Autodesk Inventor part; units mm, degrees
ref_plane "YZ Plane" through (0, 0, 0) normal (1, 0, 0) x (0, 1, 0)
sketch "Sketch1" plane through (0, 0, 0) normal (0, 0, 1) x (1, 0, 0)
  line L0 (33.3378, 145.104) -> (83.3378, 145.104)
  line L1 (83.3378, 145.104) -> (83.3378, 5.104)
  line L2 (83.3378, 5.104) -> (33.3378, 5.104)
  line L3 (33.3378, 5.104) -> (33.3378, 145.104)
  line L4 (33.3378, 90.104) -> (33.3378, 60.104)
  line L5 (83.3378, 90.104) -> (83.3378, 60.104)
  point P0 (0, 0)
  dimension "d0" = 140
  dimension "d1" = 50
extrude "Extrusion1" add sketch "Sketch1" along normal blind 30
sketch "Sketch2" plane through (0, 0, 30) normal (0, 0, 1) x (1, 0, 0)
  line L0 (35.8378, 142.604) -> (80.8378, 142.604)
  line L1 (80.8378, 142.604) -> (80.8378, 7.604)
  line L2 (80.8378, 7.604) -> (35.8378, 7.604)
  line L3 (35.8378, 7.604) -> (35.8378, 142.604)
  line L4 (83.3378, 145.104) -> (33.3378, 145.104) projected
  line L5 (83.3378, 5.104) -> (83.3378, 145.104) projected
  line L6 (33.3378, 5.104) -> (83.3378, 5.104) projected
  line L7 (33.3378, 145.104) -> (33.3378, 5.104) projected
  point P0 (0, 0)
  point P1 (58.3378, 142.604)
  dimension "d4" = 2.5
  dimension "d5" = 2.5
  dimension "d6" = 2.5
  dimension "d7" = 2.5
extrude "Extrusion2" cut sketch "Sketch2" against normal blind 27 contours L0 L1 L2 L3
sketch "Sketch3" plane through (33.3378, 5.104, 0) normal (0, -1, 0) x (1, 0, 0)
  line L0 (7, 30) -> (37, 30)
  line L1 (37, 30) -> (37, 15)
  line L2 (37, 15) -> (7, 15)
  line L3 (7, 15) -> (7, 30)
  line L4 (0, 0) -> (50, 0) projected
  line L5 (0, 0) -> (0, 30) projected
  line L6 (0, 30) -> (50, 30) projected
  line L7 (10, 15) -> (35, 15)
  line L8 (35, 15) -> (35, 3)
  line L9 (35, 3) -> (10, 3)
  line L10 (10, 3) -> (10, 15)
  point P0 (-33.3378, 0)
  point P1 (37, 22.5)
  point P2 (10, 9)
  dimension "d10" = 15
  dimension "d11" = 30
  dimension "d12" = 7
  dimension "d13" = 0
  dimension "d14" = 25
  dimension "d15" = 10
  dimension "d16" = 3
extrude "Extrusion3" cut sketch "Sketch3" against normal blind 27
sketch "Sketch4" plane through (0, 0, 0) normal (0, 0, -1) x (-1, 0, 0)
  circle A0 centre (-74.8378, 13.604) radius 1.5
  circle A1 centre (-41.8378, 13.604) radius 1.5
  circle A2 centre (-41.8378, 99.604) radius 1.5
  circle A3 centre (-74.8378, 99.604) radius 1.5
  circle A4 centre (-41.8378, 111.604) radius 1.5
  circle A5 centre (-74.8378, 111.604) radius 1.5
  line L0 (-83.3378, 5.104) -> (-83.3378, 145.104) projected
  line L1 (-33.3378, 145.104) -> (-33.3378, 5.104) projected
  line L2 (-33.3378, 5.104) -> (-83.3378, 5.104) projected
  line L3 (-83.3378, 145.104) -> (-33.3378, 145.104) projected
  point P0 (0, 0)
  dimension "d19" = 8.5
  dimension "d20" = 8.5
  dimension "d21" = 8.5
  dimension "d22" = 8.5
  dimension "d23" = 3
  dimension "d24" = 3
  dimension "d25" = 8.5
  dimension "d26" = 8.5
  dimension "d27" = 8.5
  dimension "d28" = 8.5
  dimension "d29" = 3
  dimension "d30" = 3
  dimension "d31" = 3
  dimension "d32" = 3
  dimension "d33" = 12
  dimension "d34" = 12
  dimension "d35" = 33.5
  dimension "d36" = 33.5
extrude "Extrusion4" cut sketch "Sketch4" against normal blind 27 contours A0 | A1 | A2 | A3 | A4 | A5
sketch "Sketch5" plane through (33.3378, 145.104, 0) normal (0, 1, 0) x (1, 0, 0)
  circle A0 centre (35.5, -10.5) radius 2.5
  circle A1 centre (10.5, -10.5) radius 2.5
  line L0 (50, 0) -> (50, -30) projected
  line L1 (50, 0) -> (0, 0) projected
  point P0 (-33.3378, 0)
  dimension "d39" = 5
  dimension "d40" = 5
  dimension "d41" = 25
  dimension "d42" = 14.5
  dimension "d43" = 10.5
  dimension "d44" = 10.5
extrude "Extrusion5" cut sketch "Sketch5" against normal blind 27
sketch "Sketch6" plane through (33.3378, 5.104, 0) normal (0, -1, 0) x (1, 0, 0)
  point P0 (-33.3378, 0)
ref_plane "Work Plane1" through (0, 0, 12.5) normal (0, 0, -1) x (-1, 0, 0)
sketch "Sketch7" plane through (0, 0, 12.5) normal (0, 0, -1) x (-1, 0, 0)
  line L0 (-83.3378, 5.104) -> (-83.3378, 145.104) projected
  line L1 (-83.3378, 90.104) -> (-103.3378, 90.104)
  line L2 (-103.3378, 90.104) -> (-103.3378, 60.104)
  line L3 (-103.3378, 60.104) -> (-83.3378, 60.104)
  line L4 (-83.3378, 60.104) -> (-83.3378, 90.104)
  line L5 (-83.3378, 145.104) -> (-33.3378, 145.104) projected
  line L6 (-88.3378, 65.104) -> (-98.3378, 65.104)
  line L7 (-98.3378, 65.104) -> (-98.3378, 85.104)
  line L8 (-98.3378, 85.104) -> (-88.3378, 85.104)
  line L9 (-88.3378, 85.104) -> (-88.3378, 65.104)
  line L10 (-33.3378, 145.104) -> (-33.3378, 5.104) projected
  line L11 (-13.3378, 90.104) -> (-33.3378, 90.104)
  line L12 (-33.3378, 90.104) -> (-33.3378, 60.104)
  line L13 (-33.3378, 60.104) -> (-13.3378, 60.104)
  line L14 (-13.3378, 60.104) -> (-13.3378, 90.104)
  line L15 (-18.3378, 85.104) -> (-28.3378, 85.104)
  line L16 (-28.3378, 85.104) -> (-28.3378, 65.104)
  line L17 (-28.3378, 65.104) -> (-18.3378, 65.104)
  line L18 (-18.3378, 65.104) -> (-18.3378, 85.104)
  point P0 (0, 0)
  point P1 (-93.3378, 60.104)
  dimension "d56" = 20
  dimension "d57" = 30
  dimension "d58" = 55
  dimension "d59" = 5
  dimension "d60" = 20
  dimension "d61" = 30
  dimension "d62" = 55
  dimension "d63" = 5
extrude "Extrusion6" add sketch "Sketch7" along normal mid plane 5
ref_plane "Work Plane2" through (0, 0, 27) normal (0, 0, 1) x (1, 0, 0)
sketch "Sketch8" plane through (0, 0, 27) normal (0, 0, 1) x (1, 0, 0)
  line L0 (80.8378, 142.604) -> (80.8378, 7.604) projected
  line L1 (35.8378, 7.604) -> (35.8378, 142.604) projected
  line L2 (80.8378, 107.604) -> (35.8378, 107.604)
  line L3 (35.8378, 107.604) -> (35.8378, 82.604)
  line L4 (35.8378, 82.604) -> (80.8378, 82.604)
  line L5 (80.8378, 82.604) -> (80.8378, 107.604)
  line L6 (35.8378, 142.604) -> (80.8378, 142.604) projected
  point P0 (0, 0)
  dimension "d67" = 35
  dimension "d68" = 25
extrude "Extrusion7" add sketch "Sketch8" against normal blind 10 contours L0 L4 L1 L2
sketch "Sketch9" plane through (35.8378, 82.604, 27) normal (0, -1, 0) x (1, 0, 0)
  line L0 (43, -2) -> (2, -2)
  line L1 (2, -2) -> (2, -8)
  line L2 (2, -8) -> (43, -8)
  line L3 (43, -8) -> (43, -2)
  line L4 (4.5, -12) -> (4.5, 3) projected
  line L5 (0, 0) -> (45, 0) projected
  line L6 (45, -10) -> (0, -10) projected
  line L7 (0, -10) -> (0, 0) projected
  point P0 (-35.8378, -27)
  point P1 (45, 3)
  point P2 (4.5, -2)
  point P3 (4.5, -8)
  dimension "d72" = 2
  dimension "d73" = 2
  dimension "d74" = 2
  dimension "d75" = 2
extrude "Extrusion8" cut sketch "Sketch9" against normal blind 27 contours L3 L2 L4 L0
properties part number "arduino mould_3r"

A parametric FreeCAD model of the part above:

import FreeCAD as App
import Part
import Sketcher

doc = App.newDocument("Part")
params = doc.addObject("Spreadsheet::Sheet", "Params")
for row, (alias, value) in enumerate([
    ("sketch1_width", "50 mm"),
    ("sketch1_height", "140 mm"),
    ("pad1_length", "30 mm"),
    ("sketch2_width", "45 mm"),
    ("sketch2_height", "135 mm"),
    ("pocket1_length", "27 mm"),
    ("sketch3_width", "30 mm"),
    ("sketch3_width2", "3 mm"),
    ("sketch3_width3", "25 mm"),
    ("sketch3_height", "15 mm"),
    ("pocket2_length", "27 mm"),
    ("sketch4_diameter", "3 mm"),
    ("pocket3_length", "27 mm"),
    ("sketch5_diameter", "5 mm"),
    ("pocket4_length", "27 mm"),
    ("sketch6_width", "20 mm"),
    ("sketch6_height", "30 mm"),
    ("pad2_length", "5 mm"),
    ("sketch7_height", "25 mm"),
    ("sketch7_width", "45 mm"),
    ("pad3_length", "10 mm"),
    ("sketch8_height", "6 mm"),
    ("sketch8_width", "38.5 mm"),
    ("pocket5_length", "27 mm"),
], start=1):
    params.set(f"A{row}", alias)
    params.set(f"B{row}", "=" + value)
    params.setAlias(f"B{row}", alias)

body = doc.addObject("PartDesign::Body", "Body")

# Sketch on XY plane
sketch1 = body.newObject("Sketcher::SketchObject", "Sketch")
sketch1.AttachmentSupport = (doc.getObject("XY_Plane"), [""])
sketch1.MapMode = "FlatFace"
sketch1.addGeometry([
    Part.LineSegment(App.Vector(83, 145, 0), App.Vector(33, 145, 0)),
    Part.LineSegment(App.Vector(33, 145, 0), App.Vector(33, 5, 0)),
    Part.LineSegment(App.Vector(33, 5, 0), App.Vector(83, 5, 0)),
    Part.LineSegment(App.Vector(83, 5, 0), App.Vector(83, 145, 0)),
], False)
sketch1.addConstraint([
    Sketcher.Constraint("Coincident", 0, 2, 1, 1),
    Sketcher.Constraint("Coincident", 1, 2, 2, 1),
    Sketcher.Constraint("Coincident", 2, 2, 3, 1),
    Sketcher.Constraint("Coincident", 3, 2, 0, 1),
    Sketcher.Constraint("Horizontal", 0),
    Sketcher.Constraint("Vertical", 1),
    Sketcher.Constraint("Horizontal", 2),
    Sketcher.Constraint("Vertical", 3),
    Sketcher.Constraint("DistanceX", 0, 2, 0, 1, 50.0),
    Sketcher.Constraint("DistanceY", 1, 2, 1, 1, 140.0),
    Sketcher.Constraint("DistanceY", -1, 1, 0, 2, 145.104),
    Sketcher.Constraint("DistanceX", -1, 1, 0, 2, 33.3378),
])
sketch1.setExpression("Constraints[8]", "Params.sketch1_width")
sketch1.setExpression("Constraints[9]", "Params.sketch1_height")
pad1 = body.newObject("PartDesign::Pad", "Pad")
pad1.Profile = sketch1
pad1.setExpression("Length", "Params.pad1_length")

# Sketch on XY plane
sketch2 = body.newObject("Sketcher::SketchObject", "Sketch001")
sketch2.AttachmentSupport = (doc.getObject("XY_Plane"), [""])
sketch2.MapMode = "FlatFace"
sketch2.AttachmentOffset = App.Placement(App.Vector(0, 0, 30), App.Rotation())
sketch2.addGeometry([
    Part.LineSegment(App.Vector(81, 143, 0), App.Vector(36, 143, 0)),
    Part.LineSegment(App.Vector(36, 143, 0), App.Vector(36, 8, 0)),
    Part.LineSegment(App.Vector(36, 8, 0), App.Vector(81, 8, 0)),
    Part.LineSegment(App.Vector(81, 8, 0), App.Vector(81, 143, 0)),
], False)
sketch2.addConstraint([
    Sketcher.Constraint("Coincident", 0, 2, 1, 1),
    Sketcher.Constraint("Coincident", 1, 2, 2, 1),
    Sketcher.Constraint("Coincident", 2, 2, 3, 1),
    Sketcher.Constraint("Coincident", 3, 2, 0, 1),
    Sketcher.Constraint("Horizontal", 0),
    Sketcher.Constraint("Vertical", 1),
    Sketcher.Constraint("Horizontal", 2),
    Sketcher.Constraint("Vertical", 3),
    Sketcher.Constraint("DistanceX", 0, 2, 0, 1, 45.0),
    Sketcher.Constraint("DistanceY", 1, 2, 1, 1, 135.0),
    Sketcher.Constraint("DistanceY", -1, 1, 0, 2, 142.604),
    Sketcher.Constraint("DistanceX", -1, 1, 0, 2, 35.8378),
])
sketch2.setExpression("Constraints[8]", "Params.sketch2_width")
sketch2.setExpression("Constraints[9]", "Params.sketch2_height")
pocket1 = body.newObject("PartDesign::Pocket", "Pocket")
pocket1.Profile = sketch2
pocket1.setExpression("Length", "Params.pocket1_length")

# Sketch on XZ plane
sketch3 = body.newObject("Sketcher::SketchObject", "Sketch002")
sketch3.AttachmentSupport = (doc.getObject("XZ_Plane"), [""])
sketch3.MapMode = "FlatFace"
sketch3.AttachmentOffset = App.Placement(App.Vector(0, 0, -5.104), App.Rotation())
sketch3.addGeometry([
    Part.LineSegment(App.Vector(70.3, 30, 0), App.Vector(40.3, 30, 0)),  # 0
    Part.LineSegment(App.Vector(40.3, 30, 0), App.Vector(40.3, 15, 0)),  # 1
    Part.LineSegment(App.Vector(40.3, 15, 0), App.Vector(43.3, 15, 0)),  # 2
    Part.LineSegment(App.Vector(43.3, 15, 0), App.Vector(43.3, 3, 0)),  # 3
    Part.LineSegment(App.Vector(43.3, 3, 0), App.Vector(68.3, 3, 0)),  # 4
    Part.LineSegment(App.Vector(68.3, 3, 0), App.Vector(68.3, 15, 0)),  # 5
    Part.LineSegment(App.Vector(68.3, 15, 0), App.Vector(70.3, 15, 0)),  # 6
    Part.LineSegment(App.Vector(70.3, 15, 0), App.Vector(70.3, 30, 0)),  # 7
], False)
sketch3.addConstraint([
    Sketcher.Constraint("Coincident", 0, 2, 1, 1),
    Sketcher.Constraint("Coincident", 1, 2, 2, 1),
    Sketcher.Constraint("Coincident", 2, 2, 3, 1),
    Sketcher.Constraint("Coincident", 3, 2, 4, 1),
    Sketcher.Constraint("Coincident", 4, 2, 5, 1),
    Sketcher.Constraint("Coincident", 5, 2, 6, 1),
    Sketcher.Constraint("Coincident", 6, 2, 7, 1),
    Sketcher.Constraint("Coincident", 7, 2, 0, 1),
    Sketcher.Constraint("Horizontal", 0),
    Sketcher.Constraint("Vertical", 1),
    Sketcher.Constraint("Horizontal", 2),
    Sketcher.Constraint("Vertical", 3),
    Sketcher.Constraint("Horizontal", 4),
    Sketcher.Constraint("Vertical", 5),
    Sketcher.Constraint("Horizontal", 6),
    Sketcher.Constraint("Vertical", 7),
    Sketcher.Constraint("Horizontal", 2, 2, 5, 2),
    Sketcher.Constraint("DistanceX", 0, 2, 0, 1, 30.0),
    Sketcher.Constraint("DistanceX", 2, 1, 2, 2, 3.0),
    Sketcher.Constraint("DistanceX", 4, 1, 4, 2, 25.0),
    Sketcher.Constraint("DistanceY", 1, 2, 1, 1, 15.0),
    Sketcher.Constraint("DistanceY", -1, 1, 0, 2, 30.0),
    Sketcher.Constraint("DistanceY", -1, 1, 3, 2, 3.0),
    Sketcher.Constraint("DistanceX", -1, 1, 0, 2, 40.3378),
])
sketch3.setExpression("Constraints[17]", "Params.sketch3_width")
sketch3.setExpression("Constraints[18]", "Params.sketch3_width2")
sketch3.setExpression("Constraints[19]", "Params.sketch3_width3")
sketch3.setExpression("Constraints[20]", "Params.sketch3_height")
pocket2 = body.newObject("PartDesign::Pocket", "Pocket001")
pocket2.Profile = sketch3
pocket2.setExpression("Length", "Params.pocket2_length")

# Sketch on XY plane
sketch4 = body.newObject("Sketcher::SketchObject", "Sketch003")
sketch4.AttachmentSupport = (doc.getObject("XY_Plane"), [""])
sketch4.MapMode = "FlatFace"
sketch4.addGeometry([
    Part.Circle(App.Vector(74.8, 13.6, 0), App.Vector(0, 0, 1), 1.5),  # 0
    Part.Circle(App.Vector(41.8, 13.6, 0), App.Vector(0, 0, 1), 1.5),  # 1
    Part.Circle(App.Vector(41.8, 99.6, 0), App.Vector(0, 0, 1), 1.5),  # 2
    Part.Circle(App.Vector(74.8, 99.6, 0), App.Vector(0, 0, 1), 1.5),  # 3
    Part.Circle(App.Vector(41.8, 111.6, 0), App.Vector(0, 0, 1), 1.5),  # 4
    Part.Circle(App.Vector(74.8, 111.6, 0), App.Vector(0, 0, 1), 1.5),  # 5
], False)
sketch4.addConstraint([
    Sketcher.Constraint("Equal", 0, 1),
    Sketcher.Constraint("Equal", 1, 2),
    Sketcher.Constraint("Equal", 2, 3),
    Sketcher.Constraint("Equal", 3, 4),
    Sketcher.Constraint("Equal", 4, 5),
    Sketcher.Constraint("Horizontal", 0, 3, 1, 3),
    Sketcher.Constraint("Horizontal", 2, 3, 3, 3),
    Sketcher.Constraint("Horizontal", 4, 3, 5, 3),
    Sketcher.Constraint("Vertical", 1, 3, 2, 3),
    Sketcher.Constraint("Vertical", 0, 3, 3, 3),
    Sketcher.Constraint("Vertical", 2, 3, 4, 3),
    Sketcher.Constraint("Vertical", 3, 3, 5, 3),
    Sketcher.Constraint("Diameter", 0, 3.0),
    Sketcher.Constraint("DistanceY", 2, 3, 4, 3, 12.0),
    Sketcher.Constraint("DistanceX", 1, 3, 0, 3, 33.0),
    Sketcher.Constraint("DistanceY", 1, 3, 2, 3, 86.0),
    Sketcher.Constraint("DistanceY", -1, 1, 0, 3, 13.604),
    Sketcher.Constraint("DistanceX", -1, 1, 0, 3, 74.8378),
])
sketch4.setExpression("Constraints[12]", "Params.sketch4_diameter")
pocket3 = body.newObject("PartDesign::Pocket", "Pocket002")
pocket3.Profile = sketch4
pocket3.setExpression("Length", "Params.pocket3_length")
pocket3.Reversed = True

# Sketch on XZ plane
sketch5 = body.newObject("Sketcher::SketchObject", "Sketch004")
sketch5.AttachmentSupport = (doc.getObject("XZ_Plane"), [""])
sketch5.MapMode = "FlatFace"
sketch5.AttachmentOffset = App.Placement(App.Vector(0, 0, -145.104), App.Rotation())
sketch5.addGeometry([
    Part.Circle(App.Vector(68.8, 10.5, 0), App.Vector(0, 0, 1), 2.5),
    Part.Circle(App.Vector(43.8, 10.5, 0), App.Vector(0, 0, 1), 2.5),
], False)
sketch5.addConstraint([
    Sketcher.Constraint("Equal", 0, 1),
    Sketcher.Constraint("Horizontal", 0, 3, 1, 3),
    Sketcher.Constraint("Diameter", 0, 5.0),
    Sketcher.Constraint("DistanceX", 1, 3, 0, 3, 25.0),
    Sketcher.Constraint("DistanceY", -1, 1, 0, 3, 10.5),
    Sketcher.Constraint("DistanceX", -1, 1, 0, 3, 68.8378),
])
sketch5.setExpression("Constraints[2]", "Params.sketch5_diameter")
pocket4 = body.newObject("PartDesign::Pocket", "Pocket003")
pocket4.Profile = sketch5
pocket4.setExpression("Length", "Params.pocket4_length")
pocket4.Reversed = True

# Sketch on XY plane
sketch6 = body.newObject("Sketcher::SketchObject", "Sketch005")
sketch6.AttachmentSupport = (doc.getObject("XY_Plane"), [""])
sketch6.MapMode = "FlatFace"
sketch6.AttachmentOffset = App.Placement(App.Vector(0, 0, 12.5), App.Rotation())
sketch6.addGeometry([
    Part.LineSegment(App.Vector(103, 60, 0), App.Vector(83, 60, 0)),  # 0
    Part.LineSegment(App.Vector(83, 60, 0), App.Vector(83, 90, 0)),  # 1
    Part.LineSegment(App.Vector(83, 90, 0), App.Vector(103, 90, 0)),  # 2
    Part.LineSegment(App.Vector(103, 90, 0), App.Vector(103, 60, 0)),  # 3
    Part.LineSegment(App.Vector(88, 85, 0), App.Vector(88, 65, 0)),  # 4
    Part.LineSegment(App.Vector(88, 65, 0), App.Vector(98, 65, 0)),  # 5
    Part.LineSegment(App.Vector(98, 65, 0), App.Vector(98, 85, 0)),  # 6
    Part.LineSegment(App.Vector(98, 85, 0), App.Vector(88, 85, 0)),  # 7
    Part.LineSegment(App.Vector(13, 90, 0), App.Vector(33, 90, 0)),  # 8
    Part.LineSegment(App.Vector(33, 90, 0), App.Vector(33, 60, 0)),  # 9
    Part.LineSegment(App.Vector(33, 60, 0), App.Vector(13, 60, 0)),  # 10
    Part.LineSegment(App.Vector(13, 60, 0), App.Vector(13, 90, 0)),  # 11
    Part.LineSegment(App.Vector(28, 85, 0), App.Vector(18, 85, 0)),  # 12
    Part.LineSegment(App.Vector(18, 85, 0), App.Vector(18, 65, 0)),  # 13
    Part.LineSegment(App.Vector(18, 65, 0), App.Vector(28, 65, 0)),  # 14
    Part.LineSegment(App.Vector(28, 65, 0), App.Vector(28, 85, 0)),  # 15
], False)
sketch6.addConstraint([
    Sketcher.Constraint("Coincident", 0, 2, 1, 1),
    Sketcher.Constraint("Coincident", 1, 2, 2, 1),
    Sketcher.Constraint("Coincident", 2, 2, 3, 1),
    Sketcher.Constraint("Coincident", 3, 2, 0, 1),
    Sketcher.Constraint("Coincident", 4, 2, 5, 1),
    Sketcher.Constraint("Coincident", 5, 2, 6, 1),
    Sketcher.Constraint("Coincident", 6, 2, 7, 1),
    Sketcher.Constraint("Coincident", 7, 2, 4, 1),
    Sketcher.Constraint("Coincident", 8, 2, 9, 1),
    Sketcher.Constraint("Coincident", 9, 2, 10, 1),
    Sketcher.Constraint("Coincident", 10, 2, 11, 1),
    Sketcher.Constraint("Coincident", 11, 2, 8, 1),
    Sketcher.Constraint("Coincident", 12, 2, 13, 1),
    Sketcher.Constraint("Coincident", 13, 2, 14, 1),
    Sketcher.Constraint("Coincident", 14, 2, 15, 1),
    Sketcher.Constraint("Coincident", 15, 2, 12, 1),
    Sketcher.Constraint("Horizontal", 0),
    Sketcher.Constraint("Vertical", 1),
    Sketcher.Constraint("Horizontal", 2),
    Sketcher.Constraint("Vertical", 3),
    Sketcher.Constraint("Vertical", 4),
    Sketcher.Constraint("Horizontal", 5),
    Sketcher.Constraint("Vertical", 6),
    Sketcher.Constraint("Horizontal", 7),
    Sketcher.Constraint("Horizontal", 8),
    Sketcher.Constraint("Vertical", 9),
    Sketcher.Constraint("Horizontal", 10),
    Sketcher.Constraint("Vertical", 11),
    Sketcher.Constraint("Horizontal", 12),
    Sketcher.Constraint("Vertical", 13),
    Sketcher.Constraint("Horizontal", 14),
    Sketcher.Constraint("Vertical", 15),
    Sketcher.Constraint("Horizontal", 2, 2, 8, 2),
    Sketcher.Constraint("Horizontal", 3, 2, 9, 2),
    Sketcher.Constraint("Horizontal", 7, 2, 12, 2),
    Sketcher.Constraint("Horizontal", 5, 2, 13, 2),
    Sketcher.Constraint("Equal", 2, 8),
    Sketcher.Constraint("Equal", 7, 12),
    Sketcher.Constraint("Equal", 10, 4),
    Sketcher.Constraint("DistanceX", 0, 2, 0, 1, 20.0),
    Sketcher.Constraint("DistanceY", 1, 1, 1, 2, 30.0),
    Sketcher.Constraint("DistanceX", 0, 2, 4, 2, 5.0),
    Sketcher.Constraint("DistanceY", 0, 2, 4, 2, 5.0),
    Sketcher.Constraint("DistanceX", 5, 2, 3, 2, 5.0),
    Sketcher.Constraint("DistanceX", 8, 2, 7, 2, 55.0),
    Sketcher.Constraint("DistanceX", 11, 2, 12, 2, 5.0),
    Sketcher.Constraint("DistanceY", -1, 1, 0, 2, 60.104),
    Sketcher.Constraint("DistanceX", -1, 1, 0, 2, 83.3378),
])
sketch6.setExpression("Constraints[39]", "Params.sketch6_width")
sketch6.setExpression("Constraints[40]", "Params.sketch6_height")
pad2 = body.newObject("PartDesign::Pad", "Pad001")
pad2.Profile = sketch6
pad2.setExpression("Length", "Params.pad2_length")
pad2.Midplane = True

# Sketch on XY plane
sketch7 = body.newObject("Sketcher::SketchObject", "Sketch006")
sketch7.AttachmentSupport = (doc.getObject("XY_Plane"), [""])
sketch7.MapMode = "FlatFace"
sketch7.AttachmentOffset = App.Placement(App.Vector(0, 0, 27), App.Rotation())
sketch7.addGeometry([
    Part.LineSegment(App.Vector(81, 83, 0), App.Vector(81, 108, 0)),
    Part.LineSegment(App.Vector(81, 108, 0), App.Vector(36, 108, 0)),
    Part.LineSegment(App.Vector(36, 108, 0), App.Vector(36, 83, 0)),
    Part.LineSegment(App.Vector(36, 83, 0), App.Vector(81, 83, 0)),
], False)
sketch7.addConstraint([
    Sketcher.Constraint("Coincident", 0, 2, 1, 1),
    Sketcher.Constraint("Coincident", 1, 2, 2, 1),
    Sketcher.Constraint("Coincident", 2, 2, 3, 1),
    Sketcher.Constraint("Coincident", 3, 2, 0, 1),
    Sketcher.Constraint("Vertical", 0),
    Sketcher.Constraint("Horizontal", 1),
    Sketcher.Constraint("Vertical", 2),
    Sketcher.Constraint("Horizontal", 3),
    Sketcher.Constraint("DistanceY", 0, 1, 0, 2, 25.0),
    Sketcher.Constraint("DistanceX", 1, 2, 1, 1, 45.0),
    Sketcher.Constraint("DistanceY", -1, 1, 0, 2, 107.604),
    Sketcher.Constraint("DistanceX", -1, 1, 0, 2, 80.8378),
])
sketch7.setExpression("Constraints[8]", "Params.sketch7_height")
sketch7.setExpression("Constraints[9]", "Params.sketch7_width")
pad3 = body.newObject("PartDesign::Pad", "Pad002")
pad3.Profile = sketch7
pad3.setExpression("Length", "Params.pad3_length")
pad3.Reversed = True

# Sketch on XZ plane
sketch8 = body.newObject("Sketcher::SketchObject", "Sketch007")
sketch8.AttachmentSupport = (doc.getObject("XZ_Plane"), [""])
sketch8.MapMode = "FlatFace"
sketch8.AttachmentOffset = App.Placement(App.Vector(0, 0, -82.604), App.Rotation())
sketch8.addGeometry([
    Part.LineSegment(App.Vector(79, 19, 0), App.Vector(79, 25, 0)),
    Part.LineSegment(App.Vector(79, 25, 0), App.Vector(40, 25, 0)),
    Part.LineSegment(App.Vector(40, 25, 0), App.Vector(40, 19, 0)),
    Part.LineSegment(App.Vector(40, 19, 0), App.Vector(79, 19, 0)),
], False)
sketch8.addConstraint([
    Sketcher.Constraint("Coincident", 0, 2, 1, 1),
    Sketcher.Constraint("Coincident", 1, 2, 2, 1),
    Sketcher.Constraint("Coincident", 2, 2, 3, 1),
    Sketcher.Constraint("Coincident", 3, 2, 0, 1),
    Sketcher.Constraint("Vertical", 0),
    Sketcher.Constraint("Horizontal", 1),
    Sketcher.Constraint("Vertical", 2),
    Sketcher.Constraint("Horizontal", 3),
    Sketcher.Constraint("DistanceY", 0, 1, 0, 2, 6.0),
    Sketcher.Constraint("DistanceX", 1, 2, 1, 1, 38.5),
    Sketcher.Constraint("DistanceY", -1, 1, 0, 2, 25.0),
    Sketcher.Constraint("DistanceX", -1, 1, 0, 2, 78.8378),
])
sketch8.setExpression("Constraints[8]", "Params.sketch8_height")
sketch8.setExpression("Constraints[9]", "Params.sketch8_width")
pocket5 = body.newObject("PartDesign::Pocket", "Pocket004")
pocket5.Profile = sketch8
pocket5.setExpression("Length", "Params.pocket5_length")

doc.recompute()
